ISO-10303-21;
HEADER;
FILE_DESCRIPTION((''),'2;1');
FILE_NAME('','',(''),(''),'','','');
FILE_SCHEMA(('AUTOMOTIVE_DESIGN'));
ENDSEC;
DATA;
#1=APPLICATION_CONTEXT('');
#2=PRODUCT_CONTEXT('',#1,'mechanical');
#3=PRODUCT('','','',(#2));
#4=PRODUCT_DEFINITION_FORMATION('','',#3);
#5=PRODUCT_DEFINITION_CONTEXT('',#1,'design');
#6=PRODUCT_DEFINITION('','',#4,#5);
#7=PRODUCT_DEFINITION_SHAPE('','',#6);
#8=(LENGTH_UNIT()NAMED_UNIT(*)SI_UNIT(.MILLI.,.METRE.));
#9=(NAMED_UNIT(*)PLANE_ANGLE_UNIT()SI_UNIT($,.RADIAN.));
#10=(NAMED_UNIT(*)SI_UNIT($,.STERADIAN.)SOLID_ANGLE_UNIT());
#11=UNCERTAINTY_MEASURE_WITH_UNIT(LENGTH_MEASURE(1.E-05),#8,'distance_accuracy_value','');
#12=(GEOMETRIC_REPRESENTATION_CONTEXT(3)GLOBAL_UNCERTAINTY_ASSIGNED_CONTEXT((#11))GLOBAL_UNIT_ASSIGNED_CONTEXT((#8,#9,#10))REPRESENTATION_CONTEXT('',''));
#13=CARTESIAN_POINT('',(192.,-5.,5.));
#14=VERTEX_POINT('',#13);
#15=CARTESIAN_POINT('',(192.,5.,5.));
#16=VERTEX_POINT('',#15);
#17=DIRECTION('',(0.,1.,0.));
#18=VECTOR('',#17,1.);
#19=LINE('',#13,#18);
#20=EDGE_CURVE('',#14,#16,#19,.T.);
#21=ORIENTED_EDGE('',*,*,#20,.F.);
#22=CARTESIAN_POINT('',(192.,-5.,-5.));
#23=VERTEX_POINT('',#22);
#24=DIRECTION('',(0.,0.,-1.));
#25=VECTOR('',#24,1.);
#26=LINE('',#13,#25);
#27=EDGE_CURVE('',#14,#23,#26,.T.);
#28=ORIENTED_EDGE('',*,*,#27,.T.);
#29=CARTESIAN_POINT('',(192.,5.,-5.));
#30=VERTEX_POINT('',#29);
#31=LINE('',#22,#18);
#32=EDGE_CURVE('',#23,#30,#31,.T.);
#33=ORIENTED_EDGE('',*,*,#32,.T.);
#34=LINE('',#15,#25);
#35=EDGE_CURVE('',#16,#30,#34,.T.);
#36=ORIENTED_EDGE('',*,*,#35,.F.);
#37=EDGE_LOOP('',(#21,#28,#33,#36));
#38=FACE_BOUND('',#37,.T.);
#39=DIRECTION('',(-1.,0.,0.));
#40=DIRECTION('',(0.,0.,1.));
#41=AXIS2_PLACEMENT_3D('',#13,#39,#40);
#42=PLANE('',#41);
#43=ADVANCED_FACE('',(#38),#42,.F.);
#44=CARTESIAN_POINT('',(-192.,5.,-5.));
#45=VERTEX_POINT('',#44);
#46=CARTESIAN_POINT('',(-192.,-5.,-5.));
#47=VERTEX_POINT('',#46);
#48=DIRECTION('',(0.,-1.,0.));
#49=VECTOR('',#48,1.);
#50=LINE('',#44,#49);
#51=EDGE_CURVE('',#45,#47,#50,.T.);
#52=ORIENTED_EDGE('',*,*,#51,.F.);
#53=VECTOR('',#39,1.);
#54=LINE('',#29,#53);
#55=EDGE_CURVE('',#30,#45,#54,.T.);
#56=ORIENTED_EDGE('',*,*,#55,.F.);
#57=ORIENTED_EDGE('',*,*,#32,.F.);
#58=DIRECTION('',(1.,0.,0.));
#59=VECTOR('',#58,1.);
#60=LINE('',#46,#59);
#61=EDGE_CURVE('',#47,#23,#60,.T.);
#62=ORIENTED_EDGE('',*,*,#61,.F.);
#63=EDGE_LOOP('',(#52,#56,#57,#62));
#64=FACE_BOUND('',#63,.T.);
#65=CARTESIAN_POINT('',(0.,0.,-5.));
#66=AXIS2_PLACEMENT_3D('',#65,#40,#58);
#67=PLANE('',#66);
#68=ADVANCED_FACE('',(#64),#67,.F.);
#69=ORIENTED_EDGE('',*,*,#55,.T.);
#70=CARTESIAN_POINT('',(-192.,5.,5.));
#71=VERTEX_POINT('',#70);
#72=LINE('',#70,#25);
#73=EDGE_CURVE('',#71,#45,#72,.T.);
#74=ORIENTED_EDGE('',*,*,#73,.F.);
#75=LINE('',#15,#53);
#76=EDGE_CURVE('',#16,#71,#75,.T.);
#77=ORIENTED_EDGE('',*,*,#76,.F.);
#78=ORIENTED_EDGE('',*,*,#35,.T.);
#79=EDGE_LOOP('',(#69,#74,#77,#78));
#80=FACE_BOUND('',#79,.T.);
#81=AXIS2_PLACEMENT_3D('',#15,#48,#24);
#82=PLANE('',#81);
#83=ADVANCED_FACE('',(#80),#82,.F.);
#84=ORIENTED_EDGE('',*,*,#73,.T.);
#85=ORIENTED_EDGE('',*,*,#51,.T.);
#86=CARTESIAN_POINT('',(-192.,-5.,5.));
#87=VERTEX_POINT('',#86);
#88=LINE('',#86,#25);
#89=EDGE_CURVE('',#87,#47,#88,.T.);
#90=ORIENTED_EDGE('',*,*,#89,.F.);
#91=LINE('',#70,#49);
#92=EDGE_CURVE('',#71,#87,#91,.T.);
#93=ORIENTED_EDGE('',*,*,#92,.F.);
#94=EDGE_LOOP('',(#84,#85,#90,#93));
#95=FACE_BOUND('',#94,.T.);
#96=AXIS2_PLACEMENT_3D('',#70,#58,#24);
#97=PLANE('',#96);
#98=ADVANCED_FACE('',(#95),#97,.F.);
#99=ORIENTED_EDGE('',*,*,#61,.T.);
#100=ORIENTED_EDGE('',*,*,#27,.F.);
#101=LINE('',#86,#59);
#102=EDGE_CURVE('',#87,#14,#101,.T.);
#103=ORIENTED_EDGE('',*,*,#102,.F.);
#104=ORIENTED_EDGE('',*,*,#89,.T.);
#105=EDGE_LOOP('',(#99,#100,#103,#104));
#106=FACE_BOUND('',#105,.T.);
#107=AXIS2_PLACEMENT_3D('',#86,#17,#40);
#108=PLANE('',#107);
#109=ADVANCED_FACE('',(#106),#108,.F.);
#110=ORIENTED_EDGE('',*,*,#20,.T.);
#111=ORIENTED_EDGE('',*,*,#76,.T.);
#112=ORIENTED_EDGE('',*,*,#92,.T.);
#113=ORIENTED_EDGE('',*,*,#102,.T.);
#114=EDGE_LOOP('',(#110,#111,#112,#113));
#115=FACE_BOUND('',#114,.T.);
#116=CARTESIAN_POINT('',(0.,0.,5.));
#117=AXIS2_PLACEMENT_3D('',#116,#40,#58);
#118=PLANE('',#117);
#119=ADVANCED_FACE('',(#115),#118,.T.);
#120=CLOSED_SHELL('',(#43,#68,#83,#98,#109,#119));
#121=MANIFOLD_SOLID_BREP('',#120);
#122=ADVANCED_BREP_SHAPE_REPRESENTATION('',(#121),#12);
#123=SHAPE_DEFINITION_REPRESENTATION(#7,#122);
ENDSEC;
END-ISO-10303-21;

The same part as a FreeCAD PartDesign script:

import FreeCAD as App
import Part
import Sketcher

V = App.Vector
Q = App.Units.Quantity

doc = App.newDocument("Part")
params = doc.addObject("Spreadsheet::Sheet", "Params")
for row, (alias, value) in enumerate([
    ("sketch1_width", "384 mm"),
    ("sketch1_height", "10 mm"),
    ("pad1_length", "10 mm"),
], start=1):
    params.set(f"A{row}", alias)
    params.set(f"B{row}", "=" + value)
    params.setAlias(f"B{row}", alias)

body = doc.addObject("PartDesign::Body", "Body")

# Sketch on XY plane
sketch1 = body.newObject("Sketcher::SketchObject", "Sketch")
sketch1.AttachmentSupport = (doc.getObject("XY_Plane"), [""])
sketch1.MapMode = "FlatFace"
sketch1.addGeometry(Part.LineSegment(V(-192, 5, 0), V(-192, -5, 0)), False)
sketch1.addGeometry(Part.LineSegment(V(-192, -5, 0), V(192, -5, 0)), False)
sketch1.addGeometry(Part.LineSegment(V(192, -5, 0), V(192, 5, 0)), False)
sketch1.addGeometry(Part.LineSegment(V(192, 5, 0), V(-192, 5, 0)), False)
sketch1.addConstraint(Sketcher.Constraint("Coincident", 0, 2, 1, 1))
sketch1.addConstraint(Sketcher.Constraint("Coincident", 1, 2, 2, 1))
sketch1.addConstraint(Sketcher.Constraint("Coincident", 2, 2, 3, 1))
sketch1.addConstraint(Sketcher.Constraint("Coincident", 3, 2, 0, 1))
sketch1.addConstraint(Sketcher.Constraint("Vertical", 0))
sketch1.addConstraint(Sketcher.Constraint("Horizontal", 1))
sketch1.addConstraint(Sketcher.Constraint("Vertical", 2))
sketch1.addConstraint(Sketcher.Constraint("Horizontal", 3))
sketch1.addConstraint(Sketcher.Constraint("Symmetric", 0, 2, 2, 2, -1, 1))
sketch1.addConstraint(Sketcher.Constraint("DistanceX", 1, 1, 1, 2, Q("384 mm")))
sketch1.addConstraint(Sketcher.Constraint("DistanceY", 0, 2, 0, 1, Q("10 mm")))
sketch1.setExpression("Constraints[9]", "Params.sketch1_width")
sketch1.setExpression("Constraints[10]", "Params.sketch1_height")
pad1 = body.newObject("PartDesign::Pad", "Pad")
pad1.Profile = sketch1
pad1.setExpression("Length", "Params.pad1_length")
pad1.Midplane = True

doc.recompute()
